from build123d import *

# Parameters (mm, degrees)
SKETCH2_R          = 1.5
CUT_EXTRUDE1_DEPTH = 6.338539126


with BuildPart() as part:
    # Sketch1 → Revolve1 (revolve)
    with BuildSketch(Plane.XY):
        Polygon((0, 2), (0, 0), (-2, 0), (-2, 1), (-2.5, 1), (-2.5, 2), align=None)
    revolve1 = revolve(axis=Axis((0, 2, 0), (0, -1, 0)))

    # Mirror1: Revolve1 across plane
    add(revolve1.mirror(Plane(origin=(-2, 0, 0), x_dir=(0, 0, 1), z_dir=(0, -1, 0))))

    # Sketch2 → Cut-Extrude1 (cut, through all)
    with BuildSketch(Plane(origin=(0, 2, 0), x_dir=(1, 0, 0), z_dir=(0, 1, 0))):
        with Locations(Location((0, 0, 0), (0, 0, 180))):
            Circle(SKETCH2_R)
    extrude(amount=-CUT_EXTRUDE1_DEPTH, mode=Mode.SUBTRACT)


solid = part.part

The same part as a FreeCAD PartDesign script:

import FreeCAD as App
import Part
import Sketcher

V = App.Vector
Q = App.Units.Quantity

doc = App.newDocument("Part")
body = doc.addObject("PartDesign::Body", "Body")

# Sketch on XY plane
sketch1 = body.newObject("Sketcher::SketchObject", "Sketch")
sketch1.AttachmentSupport = (doc.getObject("XY_Plane"), [""])
sketch1.MapMode = "FlatFace"
sketch1.addGeometry(Part.LineSegment(V(0, 0, 0), V(0, 2, 0)), False)
sketch1.addGeometry(Part.LineSegment(V(0, 2, 0), V(-2.5, 2, 0)), False)
sketch1.addGeometry(Part.LineSegment(V(-2.5, 2, 0), V(-2.5, 1, 0)), False)
sketch1.addGeometry(Part.LineSegment(V(-2.5, 1, 0), V(-2, 1, 0)), False)
sketch1.addGeometry(Part.LineSegment(V(-2, 1, 0), V(-2, 0, 0)), False)
sketch1.addGeometry(Part.LineSegment(V(-2, 0, 0), V(0, 0, 0)), False)
sketch1.addConstraint(Sketcher.Constraint("Coincident", 0, 2, 1, 1))
sketch1.addConstraint(Sketcher.Constraint("Coincident", 1, 2, 2, 1))
sketch1.addConstraint(Sketcher.Constraint("Coincident", 2, 2, 3, 1))
sketch1.addConstraint(Sketcher.Constraint("Coincident", 3, 2, 4, 1))
sketch1.addConstraint(Sketcher.Constraint("Coincident", 4, 2, 5, 1))
sketch1.addConstraint(Sketcher.Constraint("Coincident", 5, 2, 0, 1))
sketch1.addConstraint(Sketcher.Constraint("Vertical", 0))
sketch1.addConstraint(Sketcher.Constraint("Horizontal", 1))
sketch1.addConstraint(Sketcher.Constraint("Vertical", 2))
sketch1.addConstraint(Sketcher.Constraint("Horizontal", 3))
sketch1.addConstraint(Sketcher.Constraint("Vertical", 4))
sketch1.addConstraint(Sketcher.Constraint("Horizontal", 5))
sketch1.addConstraint(Sketcher.Constraint("Coincident", 5, 2, -1, 1))
sketch1.addConstraint(Sketcher.Constraint("Equal", 5, 0))
sketch1.addConstraint(Sketcher.Constraint("Equal", 2, 4))
sketch1.addConstraint(Sketcher.Constraint("DistanceX", 5, 1, 5, 2, Q("2 mm")))
sketch1.addConstraint(Sketcher.Constraint("DistanceX", 1, 2, 1, 1, Q("2.5 mm")))
revolution = body.newObject("PartDesign::Revolution", "Revolution")
revolution.Profile = sketch1
revolution.ReferenceAxis = (sketch1, ["V_Axis"])
revolution.Angle = 360
doc.recompute()

mirrored = body.newObject("PartDesign::Mirrored", "Mirrored")
mirrored.Originals = [revolution]
mirrored.MirrorPlane = (doc.getObject("XZ_Plane"), [""])
body.Tip = mirrored

# Sketch on XZ plane
sketch2 = body.newObject("Sketcher::SketchObject", "Sketch001")
sketch2.AttachmentSupport = (doc.getObject("XZ_Plane"), [""])
sketch2.MapMode = "FlatFace"
sketch2.AttachmentOffset = App.Placement(V(0, 0, -2), App.Rotation())
sketch2.addGeometry(Part.Circle(V(0, 0, 0), V(0, 0, 1), 1.5), False)
sketch2.addConstraint(Sketcher.Constraint("Coincident", 0, 3, -1, 1))
sketch2.addConstraint(Sketcher.Constraint("Diameter", 0, Q("3 mm")))
pocket1 = body.newObject("PartDesign::Pocket", "Pocket")
pocket1.Profile = sketch2
pocket1.Type = "ThroughAll"
pocket1.Reversed = True

doc.recompute()
